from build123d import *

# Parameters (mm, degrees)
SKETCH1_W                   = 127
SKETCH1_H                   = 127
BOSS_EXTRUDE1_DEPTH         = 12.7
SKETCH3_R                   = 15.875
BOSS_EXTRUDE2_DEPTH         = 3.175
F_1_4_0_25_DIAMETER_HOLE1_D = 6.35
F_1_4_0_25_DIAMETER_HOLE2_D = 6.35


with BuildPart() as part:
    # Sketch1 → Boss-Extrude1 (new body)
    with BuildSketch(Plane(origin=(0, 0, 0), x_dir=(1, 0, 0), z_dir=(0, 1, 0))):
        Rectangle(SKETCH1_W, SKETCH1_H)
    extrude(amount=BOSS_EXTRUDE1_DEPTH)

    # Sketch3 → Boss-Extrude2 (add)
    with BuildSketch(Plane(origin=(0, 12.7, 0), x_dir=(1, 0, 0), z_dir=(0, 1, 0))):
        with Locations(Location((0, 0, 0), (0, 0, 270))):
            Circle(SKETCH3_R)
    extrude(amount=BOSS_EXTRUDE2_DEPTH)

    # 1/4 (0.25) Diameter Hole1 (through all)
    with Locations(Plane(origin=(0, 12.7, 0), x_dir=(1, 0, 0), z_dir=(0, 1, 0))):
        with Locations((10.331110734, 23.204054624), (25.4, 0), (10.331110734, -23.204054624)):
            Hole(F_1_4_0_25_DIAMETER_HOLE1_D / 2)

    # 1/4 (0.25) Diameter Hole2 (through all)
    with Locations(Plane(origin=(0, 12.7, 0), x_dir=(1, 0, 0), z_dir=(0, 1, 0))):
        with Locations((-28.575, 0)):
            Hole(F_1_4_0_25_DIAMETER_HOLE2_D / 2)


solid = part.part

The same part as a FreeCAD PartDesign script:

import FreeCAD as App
import Part
import Sketcher

V = App.Vector
Q = App.Units.Quantity

doc = App.newDocument("Part")
body = doc.addObject("PartDesign::Body", "Body")

sketch1 = body.newObject("Sketcher::SketchObject", "Sketch")
sketch1.AttachmentSupport = (doc.getObject("XZ_Plane"), [""])
sketch1.MapMode = "FlatFace"
sketch1.addGeometry([
    Part.LineSegment(V(-64, -64, 0), V(-64, 64, 0)),
    Part.LineSegment(V(-64, 64, 0), V(64, 64, 0)),
    Part.LineSegment(V(64, 64, 0), V(64, -64, 0)),
    Part.LineSegment(V(64, -64, 0), V(-64, -64, 0)),
], False)
sketch1.addConstraint([
    Sketcher.Constraint("Coincident", 0, 2, 1, 1),
    Sketcher.Constraint("Coincident", 1, 2, 2, 1),
    Sketcher.Constraint("Coincident", 2, 2, 3, 1),
    Sketcher.Constraint("Coincident", 3, 2, 0, 1),
    Sketcher.Constraint("Vertical", 0),
    Sketcher.Constraint("Horizontal", 1),
    Sketcher.Constraint("Vertical", 2),
    Sketcher.Constraint("Horizontal", 3),
    Sketcher.Constraint("Symmetric", 0, 2, 2, 2, -1, 1),
    Sketcher.Constraint("Equal", 3, 0),
    Sketcher.Constraint("DistanceX", 1, 1, 1, 2, Q("5 in")),
])
pad1 = body.newObject("PartDesign::Pad", "Pad")
pad1.Profile = sketch1
pad1.Length = Q("0.5 in")
pad1.Reversed = True

sketch2 = body.newObject("Sketcher::SketchObject", "Sketch001")
sketch2.AttachmentSupport = (doc.getObject("XZ_Plane"), [""])
sketch2.MapMode = "FlatFace"
sketch2.AttachmentOffset = App.Placement(V(0, 0, -0.5 * 25.4), App.Rotation())
sketch2.addGeometry(Part.Circle(V(0, 0, 0), V(0, 0, 1), 16), False)
sketch2.addConstraint([
    Sketcher.Constraint("Coincident", 0, 3, -1, 1),
    Sketcher.Constraint("Diameter", 0, Q("1.25 in")),
])
pad2 = body.newObject("PartDesign::Pad", "Pad001")
pad2.Profile = sketch2
pad2.Length = Q("0.125 in")
pad2.Reversed = True

sketch3 = body.newObject("Sketcher::SketchObject", "Sketch002")
sketch3.AttachmentSupport = (doc.getObject("XZ_Plane"), [""])
sketch3.MapMode = "FlatFace"
sketch3.AttachmentOffset = App.Placement(V(0, 0, -0.5 * 25.4), App.Rotation())
sketch3.addGeometry([
    Part.Circle(V(10.3, -23.2, 0), V(0, 0, 1), 3.2),
    Part.Circle(V(25.4, 0, 0), V(0, 0, 1), 3.2),
    Part.Circle(V(10.3, 23.2, 0), V(0, 0, 1), 3.2),
], False)
sketch3.addConstraint([
    Sketcher.Constraint("Equal", 0, 1),
    Sketcher.Constraint("Equal", 1, 2),
    Sketcher.Constraint("Symmetric", 0, 3, 2, 3, -1),
    Sketcher.Constraint("PointOnObject", 1, 3, -1),
    Sketcher.Constraint("Diameter", 0, Q("0.25 in")),
    Sketcher.Constraint("DistanceX", -1, 1, 1, 3, Q("1 in")),
    Sketcher.Constraint("DistanceX", -1, 1, 0, 3, 10.331111),
    Sketcher.Constraint("DistanceY", 0, 3, 2, 3, 46.408109),
])
doc.recompute()
hole = body.newObject("PartDesign::Hole", "Hole")
hole.Profile = sketch3
hole.ThreadType = "None"
hole.Diameter = Q("0.25 in")
hole.DepthType = "ThroughAll"
hole.Reversed = True

sketch4 = body.newObject("Sketcher::SketchObject", "Sketch003")
sketch4.AttachmentSupport = (doc.getObject("XZ_Plane"), [""])
sketch4.MapMode = "FlatFace"
sketch4.AttachmentOffset = App.Placement(V(0, 0, -0.5 * 25.4), App.Rotation())
sketch4.addGeometry(Part.Circle(V(-28.6, 0, 0), V(0, 0, 1), 3.2), False)
sketch4.addConstraint([
    Sketcher.Constraint("PointOnObject", 0, 3, -1),
    Sketcher.Constraint("Diameter", 0, Q("0.25 in")),
    Sketcher.Constraint("DistanceX", 0, 3, -1, 1, Q("1.125 in")),
])
doc.recompute()
hole2 = body.newObject("PartDesign::Hole", "Hole001")
hole2.Profile = sketch4
hole2.ThreadType = "None"
hole2.Diameter = Q("0.25 in")
hole2.DepthType = "ThroughAll"
hole2.Reversed = True

doc.recompute()
